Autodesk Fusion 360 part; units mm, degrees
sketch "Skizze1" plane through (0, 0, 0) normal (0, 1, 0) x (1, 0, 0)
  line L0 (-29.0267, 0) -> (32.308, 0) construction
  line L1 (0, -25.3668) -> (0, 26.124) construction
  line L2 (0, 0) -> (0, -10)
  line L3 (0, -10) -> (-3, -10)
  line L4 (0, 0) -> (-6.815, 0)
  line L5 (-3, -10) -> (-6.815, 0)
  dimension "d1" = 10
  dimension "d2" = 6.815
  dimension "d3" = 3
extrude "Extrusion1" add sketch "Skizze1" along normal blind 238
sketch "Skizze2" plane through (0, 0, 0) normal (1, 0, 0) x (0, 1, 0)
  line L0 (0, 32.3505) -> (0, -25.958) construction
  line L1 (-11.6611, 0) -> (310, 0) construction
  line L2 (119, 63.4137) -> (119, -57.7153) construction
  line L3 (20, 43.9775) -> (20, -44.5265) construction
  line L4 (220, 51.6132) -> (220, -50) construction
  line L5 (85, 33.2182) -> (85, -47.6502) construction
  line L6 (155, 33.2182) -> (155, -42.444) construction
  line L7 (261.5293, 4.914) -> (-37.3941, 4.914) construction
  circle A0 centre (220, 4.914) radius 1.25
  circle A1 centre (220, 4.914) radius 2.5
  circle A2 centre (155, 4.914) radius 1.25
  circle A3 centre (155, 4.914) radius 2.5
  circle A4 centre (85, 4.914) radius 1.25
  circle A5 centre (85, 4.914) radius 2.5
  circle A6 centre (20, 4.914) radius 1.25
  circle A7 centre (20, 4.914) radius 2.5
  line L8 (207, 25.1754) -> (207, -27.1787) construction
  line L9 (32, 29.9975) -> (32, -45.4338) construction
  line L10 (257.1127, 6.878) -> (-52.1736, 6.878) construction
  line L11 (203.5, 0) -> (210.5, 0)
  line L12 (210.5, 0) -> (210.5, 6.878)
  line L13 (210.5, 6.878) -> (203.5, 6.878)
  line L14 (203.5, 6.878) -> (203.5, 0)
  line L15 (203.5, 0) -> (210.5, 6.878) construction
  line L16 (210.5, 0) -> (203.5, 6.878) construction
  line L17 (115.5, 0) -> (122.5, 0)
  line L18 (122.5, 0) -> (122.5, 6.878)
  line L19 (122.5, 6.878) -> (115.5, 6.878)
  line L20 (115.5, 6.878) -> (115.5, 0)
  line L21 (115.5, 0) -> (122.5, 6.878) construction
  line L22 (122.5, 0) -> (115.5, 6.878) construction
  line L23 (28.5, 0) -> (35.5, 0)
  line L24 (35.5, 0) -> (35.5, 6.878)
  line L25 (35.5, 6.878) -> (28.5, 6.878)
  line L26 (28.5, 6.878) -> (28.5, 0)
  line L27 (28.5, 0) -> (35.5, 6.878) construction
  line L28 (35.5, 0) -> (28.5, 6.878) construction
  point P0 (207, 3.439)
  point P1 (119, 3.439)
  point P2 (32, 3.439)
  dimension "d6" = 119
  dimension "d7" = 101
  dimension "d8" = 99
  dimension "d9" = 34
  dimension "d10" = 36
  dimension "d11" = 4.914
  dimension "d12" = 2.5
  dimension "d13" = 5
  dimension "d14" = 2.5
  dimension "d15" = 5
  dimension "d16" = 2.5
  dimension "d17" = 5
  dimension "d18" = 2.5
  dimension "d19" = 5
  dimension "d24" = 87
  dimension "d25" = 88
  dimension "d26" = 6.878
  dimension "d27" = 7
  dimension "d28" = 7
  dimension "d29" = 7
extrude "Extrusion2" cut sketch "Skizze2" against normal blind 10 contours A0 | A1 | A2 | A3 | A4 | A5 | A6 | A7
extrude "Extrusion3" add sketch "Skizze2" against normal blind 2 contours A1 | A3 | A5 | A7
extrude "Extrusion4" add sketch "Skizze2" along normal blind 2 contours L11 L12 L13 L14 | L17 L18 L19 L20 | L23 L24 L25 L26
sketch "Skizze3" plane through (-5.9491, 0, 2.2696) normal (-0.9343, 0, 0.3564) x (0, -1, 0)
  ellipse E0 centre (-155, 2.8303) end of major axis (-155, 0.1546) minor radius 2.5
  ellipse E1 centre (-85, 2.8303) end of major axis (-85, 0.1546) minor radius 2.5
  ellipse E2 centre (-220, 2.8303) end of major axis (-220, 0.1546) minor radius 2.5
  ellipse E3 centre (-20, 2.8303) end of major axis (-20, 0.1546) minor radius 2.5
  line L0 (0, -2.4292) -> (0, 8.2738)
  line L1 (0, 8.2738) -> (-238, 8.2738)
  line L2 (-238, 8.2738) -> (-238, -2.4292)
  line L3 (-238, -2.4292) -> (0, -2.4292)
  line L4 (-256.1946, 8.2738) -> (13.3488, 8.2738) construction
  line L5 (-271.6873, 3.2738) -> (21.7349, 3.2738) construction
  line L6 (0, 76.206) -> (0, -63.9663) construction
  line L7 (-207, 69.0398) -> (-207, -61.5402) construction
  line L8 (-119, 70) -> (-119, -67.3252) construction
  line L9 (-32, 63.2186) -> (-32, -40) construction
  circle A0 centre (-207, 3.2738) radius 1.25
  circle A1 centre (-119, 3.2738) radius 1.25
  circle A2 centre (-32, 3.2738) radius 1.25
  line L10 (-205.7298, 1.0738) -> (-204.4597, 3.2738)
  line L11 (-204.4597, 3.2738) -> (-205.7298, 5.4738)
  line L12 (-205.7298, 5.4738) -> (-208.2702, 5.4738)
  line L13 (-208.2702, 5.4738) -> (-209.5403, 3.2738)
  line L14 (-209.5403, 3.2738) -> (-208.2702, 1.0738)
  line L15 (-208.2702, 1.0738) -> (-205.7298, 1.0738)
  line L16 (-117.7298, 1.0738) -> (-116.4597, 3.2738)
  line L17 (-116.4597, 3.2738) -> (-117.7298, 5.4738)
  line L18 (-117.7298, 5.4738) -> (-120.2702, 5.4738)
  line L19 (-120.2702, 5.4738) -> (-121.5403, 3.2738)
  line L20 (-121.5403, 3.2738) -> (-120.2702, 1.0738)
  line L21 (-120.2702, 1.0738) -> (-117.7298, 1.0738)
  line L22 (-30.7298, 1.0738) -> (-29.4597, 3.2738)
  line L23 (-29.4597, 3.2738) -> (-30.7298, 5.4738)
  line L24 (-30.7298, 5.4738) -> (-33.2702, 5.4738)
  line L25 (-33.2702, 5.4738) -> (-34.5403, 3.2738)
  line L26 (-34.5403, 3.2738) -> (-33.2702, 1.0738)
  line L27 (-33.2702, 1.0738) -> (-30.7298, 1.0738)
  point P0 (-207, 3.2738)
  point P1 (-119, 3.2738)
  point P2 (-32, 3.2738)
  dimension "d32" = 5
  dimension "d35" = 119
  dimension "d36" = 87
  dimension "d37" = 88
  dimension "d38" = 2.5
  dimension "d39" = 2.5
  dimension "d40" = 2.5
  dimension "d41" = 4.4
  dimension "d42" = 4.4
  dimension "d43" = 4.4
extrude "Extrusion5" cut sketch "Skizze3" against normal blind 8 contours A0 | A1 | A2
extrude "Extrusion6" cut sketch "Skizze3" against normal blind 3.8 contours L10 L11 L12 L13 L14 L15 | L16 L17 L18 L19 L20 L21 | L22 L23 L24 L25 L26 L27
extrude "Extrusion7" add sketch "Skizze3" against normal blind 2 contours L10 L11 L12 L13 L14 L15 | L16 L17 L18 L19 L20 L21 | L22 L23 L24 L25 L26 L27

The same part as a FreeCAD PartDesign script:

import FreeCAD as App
import Part
import Sketcher
Q = App.Units.Quantity


def add_polygon(sketch, points):
    """Adds a closed chain of lines whose ends are joined by coincident constraints."""
    first, n = sketch.GeometryCount, len(points)
    for a, b in zip(points, points[1:] + points[:1]):
        sketch.addGeometry(Part.LineSegment(App.Vector(*a, 0), App.Vector(*b, 0)), False)
    for i in range(n):
        sketch.addConstraint(Sketcher.Constraint("Coincident", first + i, 2, first + (i + 1) % n, 1))

doc = App.newDocument("Part")
body = doc.addObject("PartDesign::Body", "Body")

sketch1 = body.newObject("Sketcher::SketchObject", "Sketch")
sketch1.AttachmentSupport = (doc.getObject("XZ_Plane"), [""])
sketch1.MapMode = "FlatFace"
add_polygon(sketch1, [(0, 10), (0, 0), (-6.8, 0), (-3, 10)])
sketch1.addConstraint([
    Sketcher.Constraint("Vertical", 0),
    Sketcher.Constraint("Horizontal", 1),
    Sketcher.Constraint("Horizontal", 3),
    Sketcher.Constraint("Coincident", 0, 2, -1, 1),
    Sketcher.Constraint("DistanceX", 3, 1, 3, 2, Q("3 mm")),
    Sketcher.Constraint("DistanceY", 0, 2, 0, 1, Q("10 mm")),
    Sketcher.Constraint("DistanceX", 1, 2, 1, 1, Q("6.815 mm")),
])
pad1 = body.newObject("PartDesign::Pad", "Pad")
pad1.Profile = sketch1
pad1.Length = 238
pad1.Reversed = True

sketch2 = body.newObject("Sketcher::SketchObject", "Sketch001")
sketch2.AttachmentSupport = (doc.getObject("YZ_Plane"), [""])
sketch2.MapMode = "FlatFace"
sketch2.addGeometry([
    Part.Circle(App.Vector(220, 4.9, 0), App.Vector(0, 0, 1), 2.5),
    Part.Circle(App.Vector(155, 4.9, 0), App.Vector(0, 0, 1), 2.5),
    Part.Circle(App.Vector(85, 4.9, 0), App.Vector(0, 0, 1), 2.5),
    Part.Circle(App.Vector(20, 4.9, 0), App.Vector(0, 0, 1), 2.5),
], False)
sketch2.addConstraint([
    Sketcher.Constraint("Equal", 0, 1),
    Sketcher.Constraint("Equal", 1, 2),
    Sketcher.Constraint("Equal", 2, 3),
    Sketcher.Constraint("Horizontal", 0, 3, 1, 3),
    Sketcher.Constraint("Horizontal", 1, 3, 2, 3),
    Sketcher.Constraint("Horizontal", 2, 3, 3, 3),
    Sketcher.Constraint("Diameter", 0, Q("5 mm")),
    Sketcher.Constraint("DistanceX", -1, 1, 0, 3, Q("220 mm")),
    Sketcher.Constraint("DistanceY", -1, 1, 0, 3, Q("4.914 mm")),
    Sketcher.Constraint("DistanceX", -1, 1, 1, 3, Q("155 mm")),
    Sketcher.Constraint("DistanceX", -1, 1, 2, 3, Q("85 mm")),
    Sketcher.Constraint("DistanceX", -1, 1, 3, 3, Q("20 mm")),
])
pocket1 = body.newObject("PartDesign::Pocket", "Pocket")
pocket1.Profile = sketch2
pocket1.Length = 10

sketch3 = body.newObject("Sketcher::SketchObject", "Sketch002")
sketch3.AttachmentSupport = (doc.getObject("YZ_Plane"), [""])
sketch3.MapMode = "FlatFace"
sketch3.addGeometry([
    Part.Circle(App.Vector(220, 4.9, 0), App.Vector(0, 0, 1), 2.5),
    Part.Circle(App.Vector(220, 4.9, 0), App.Vector(0, 0, 1), 1.2),
    Part.Circle(App.Vector(155, 4.9, 0), App.Vector(0, 0, 1), 2.5),
    Part.Circle(App.Vector(155, 4.9, 0), App.Vector(0, 0, 1), 1.2),
    Part.Circle(App.Vector(85, 4.9, 0), App.Vector(0, 0, 1), 2.5),
    Part.Circle(App.Vector(85, 4.9, 0), App.Vector(0, 0, 1), 1.2),
    Part.Circle(App.Vector(20, 4.9, 0), App.Vector(0, 0, 1), 2.5),
    Part.Circle(App.Vector(20, 4.9, 0), App.Vector(0, 0, 1), 1.2),
], False)
sketch3.addConstraint([
    Sketcher.Constraint("Coincident", 1, 3, 0, 3),
    Sketcher.Constraint("Coincident", 3, 3, 2, 3),
    Sketcher.Constraint("Coincident", 5, 3, 4, 3),
    Sketcher.Constraint("Coincident", 7, 3, 6, 3),
    Sketcher.Constraint("Equal", 0, 2),
    Sketcher.Constraint("Equal", 1, 3),
    Sketcher.Constraint("Equal", 2, 4),
    Sketcher.Constraint("Equal", 3, 5),
    Sketcher.Constraint("Equal", 4, 6),
    Sketcher.Constraint("Equal", 5, 7),
    Sketcher.Constraint("Horizontal", 1, 3, 2, 3),
    Sketcher.Constraint("Horizontal", 3, 3, 4, 3),
    Sketcher.Constraint("Horizontal", 5, 3, 6, 3),
    Sketcher.Constraint("Diameter", 0, Q("5 mm")),
    Sketcher.Constraint("Diameter", 1, Q("2.5 mm")),
    Sketcher.Constraint("DistanceX", -1, 1, 0, 3, Q("220 mm")),
    Sketcher.Constraint("DistanceY", -1, 1, 0, 3, Q("4.914 mm")),
    Sketcher.Constraint("DistanceX", -1, 1, 2, 3, Q("155 mm")),
    Sketcher.Constraint("DistanceX", -1, 1, 4, 3, Q("85 mm")),
    Sketcher.Constraint("DistanceX", -1, 1, 6, 3, Q("20 mm")),
])
pad2 = body.newObject("PartDesign::Pad", "Pad001")
pad2.Profile = sketch3
pad2.Length = 2
pad2.Reversed = True

sketch4 = body.newObject("Sketcher::SketchObject", "Sketch003")
sketch4.AttachmentSupport = (doc.getObject("YZ_Plane"), [""])
sketch4.MapMode = "FlatFace"
add_polygon(sketch4, [(204, 7), (204, 0), (210, 0), (210, 7)])
add_polygon(sketch4, [(116, 7), (116, 0), (122, 0), (122, 7)])
add_polygon(sketch4, [(28, 7), (28, 0), (36, 0), (36, 7)])
sketch4.addConstraint([
    Sketcher.Constraint("Vertical", 0),
    Sketcher.Constraint("Horizontal", 1),
    Sketcher.Constraint("Vertical", 2),
    Sketcher.Constraint("Horizontal", 3),
    Sketcher.Constraint("Vertical", 4),
    Sketcher.Constraint("Horizontal", 5),
    Sketcher.Constraint("Vertical", 6),
    Sketcher.Constraint("Horizontal", 7),
    Sketcher.Constraint("Vertical", 8),
    Sketcher.Constraint("Horizontal", 9),
    Sketcher.Constraint("Vertical", 10),
    Sketcher.Constraint("Horizontal", 11),
    Sketcher.Constraint("PointOnObject", 0, 2, -1),
    Sketcher.Constraint("PointOnObject", 4, 2, -1),
    Sketcher.Constraint("PointOnObject", 8, 2, -1),
    Sketcher.Constraint("Horizontal", 3, 2, 6, 2),
    Sketcher.Constraint("Horizontal", 7, 2, 10, 2),
    Sketcher.Constraint("Equal", 3, 5),
    Sketcher.Constraint("Equal", 7, 9),
    Sketcher.Constraint("DistanceX", 1, 1, 1, 2, Q("7 mm")),
    Sketcher.Constraint("DistanceX", 4, 2, 0, 2, Q("88 mm")),
    Sketcher.Constraint("DistanceX", 8, 2, 4, 2, Q("87 mm")),
    Sketcher.Constraint("DistanceY", 0, 2, 0, 1, Q("6.878 mm")),
    Sketcher.Constraint("DistanceX", -1, 1, 0, 2, Q("203.5 mm")),
])
pad3 = body.newObject("PartDesign::Pad", "Pad002")
pad3.Profile = sketch4
pad3.Length = 2

sketch5 = body.newObject("Sketcher::SketchObject", "Sketch004")
sketch5.Placement = App.Placement(App.Vector(-5.9491, 0, 2.2696), App.Rotation(App.Vector(0, -1, 0), App.Vector(0.356411147, 0, 0.934329222), App.Vector(-0.934329222, 0, 0.356411147), "ZXY"))
sketch5.addGeometry([
    Part.Circle(App.Vector(-207, 3.3, 0), App.Vector(0, 0, 1), 1.2),
    Part.Circle(App.Vector(-119, 3.3, 0), App.Vector(0, 0, 1), 1.2),
    Part.Circle(App.Vector(-32, 3.3, 0), App.Vector(0, 0, 1), 1.2),
], False)
sketch5.addConstraint([
    Sketcher.Constraint("Equal", 0, 1),
    Sketcher.Constraint("Equal", 1, 2),
    Sketcher.Constraint("Horizontal", 0, 3, 1, 3),
    Sketcher.Constraint("Horizontal", 1, 3, 2, 3),
    Sketcher.Constraint("Diameter", 0, Q("2.5 mm")),
    Sketcher.Constraint("DistanceX", 1, 3, -1, 1, Q("119 mm")),
    Sketcher.Constraint("DistanceX", 0, 3, 1, 3, Q("88 mm")),
    Sketcher.Constraint("DistanceX", 1, 3, 2, 3, Q("87 mm")),
    Sketcher.Constraint("DistanceY", -1, 1, 0, 3, Q("3.2738 mm")),
])
pocket2 = body.newObject("PartDesign::Pocket", "Pocket001")
pocket2.Profile = sketch5
pocket2.Length = 8

sketch6 = body.newObject("Sketcher::SketchObject", "Sketch005")
sketch6.Placement = App.Placement(App.Vector(-5.9491, 0, 2.2696), App.Rotation(App.Vector(0, -1, 0), App.Vector(0.356411147, 0, 0.934329222), App.Vector(-0.934329222, 0, 0.356411147), "ZXY"))
add_polygon(sketch6, [(-208.3, 1.1), (-205.7, 1.1), (-204.5, 3.3), (-205.7, 5.5), (-208.3, 5.5), (-209.5, 3.3)])
sketch6.addGeometry(Part.Circle(App.Vector(-207, 3.3, 0), App.Vector(0, 0, 1), 1.2), False)
add_polygon(sketch6, [(-120.3, 1.1), (-117.7, 1.1), (-116.5, 3.3), (-117.7, 5.5), (-120.3, 5.5), (-121.5, 3.3)])
sketch6.addGeometry(Part.Circle(App.Vector(-119, 3.3, 0), App.Vector(0, 0, 1), 1.2), False)
add_polygon(sketch6, [(-33.3, 1.1), (-30.7, 1.1), (-29.5, 3.3), (-30.7, 5.5), (-33.3, 5.5), (-34.5, 3.3)])
sketch6.addGeometry(Part.Circle(App.Vector(-32, 3.3, 0), App.Vector(0, 0, 1), 1.2), False)
sketch6.addConstraint([
    Sketcher.Constraint("Horizontal", 0),
    Sketcher.Constraint("Horizontal", 3),
    Sketcher.Constraint("Horizontal", 7),
    Sketcher.Constraint("Horizontal", 10),
    Sketcher.Constraint("Horizontal", 14),
    Sketcher.Constraint("Horizontal", 17),
    Sketcher.Constraint("Equal", 6, 13),
    Sketcher.Constraint("Equal", 13, 20),
    Sketcher.Constraint("Parallel", 1, 4),
    Sketcher.Constraint("Parallel", 2, 5),
    Sketcher.Constraint("Parallel", 4, 8),
    Sketcher.Constraint("Parallel", 5, 9),
    Sketcher.Constraint("Parallel", 8, 11),
    Sketcher.Constraint("Parallel", 9, 12),
    Sketcher.Constraint("Parallel", 11, 15),
    Sketcher.Constraint("Parallel", 12, 16),
    Sketcher.Constraint("Parallel", 15, 18),
    Sketcher.Constraint("Parallel", 16, 19),
    Sketcher.Constraint("Horizontal", 6, 3, 13, 3),
    Sketcher.Constraint("Horizontal", 13, 3, 20, 3),
    Sketcher.Constraint("Horizontal", 20, 3, 1, 2),
    Sketcher.Constraint("Horizontal", 1, 2, 4, 2),
    Sketcher.Constraint("Horizontal", 5, 2, 7, 2),
    Sketcher.Constraint("Horizontal", 4, 2, 8, 2),
    Sketcher.Constraint("Horizontal", 3, 2, 9, 2),
    Sketcher.Constraint("Horizontal", 8, 2, 11, 2),
    Sketcher.Constraint("Horizontal", 12, 2, 14, 2),
    Sketcher.Constraint("Horizontal", 11, 2, 15, 2),
    Sketcher.Constraint("Horizontal", 10, 2, 16, 2),
    Sketcher.Constraint("Horizontal", 15, 2, 18, 2),
    Sketcher.Constraint("Vertical", 0, 2, 2, 2),
    Sketcher.Constraint("Vertical", 3, 2, 5, 2),
    Sketcher.Constraint("Equal", 3, 7),
    Sketcher.Constraint("Equal", 10, 14),
    Sketcher.Constraint("Diameter", 6, Q("2.5 mm")),
    Sketcher.Constraint("DistanceX", 13, 3, -1, 1, Q("119 mm")),
    Sketcher.Constraint("DistanceX", 6, 3, 13, 3, Q("88 mm")),
    Sketcher.Constraint("DistanceX", 13, 3, 20, 3, Q("87 mm")),
    Sketcher.Constraint("DistanceX", 0, 2, 7, 2, Q("88 mm")),
    Sketcher.Constraint("DistanceX", 7, 2, 14, 2, Q("87 mm")),
    Sketcher.Constraint("DistanceY", 0, 2, 2, 2, Q("4.4 mm")),
    Sketcher.Constraint("DistanceX", 0, 2, 1, 2, Q("1.27 mm")),
    Sketcher.Constraint("DistanceX", 0, 1, 0, 2, Q("2.5404 mm")),
    Sketcher.Constraint("DistanceY", -1, 1, 6, 3, Q("3.2738 mm")),
    Sketcher.Constraint("DistanceX", 0, 2, -1, 1, Q("205.7298 mm")),
])
pocket3 = body.newObject("PartDesign::Pocket", "Pocket002")
pocket3.Profile = sketch6
pocket3.Length = 3.8

sketch7 = body.newObject("Sketcher::SketchObject", "Sketch006")
sketch7.Placement = App.Placement(App.Vector(-5.9491, 0, 2.2696), App.Rotation(App.Vector(0, -1, 0), App.Vector(0.356411147, 0, 0.934329222), App.Vector(-0.934329222, 0, 0.356411147), "ZXY"))
add_polygon(sketch7, [(-208.3, 1.1), (-205.7, 1.1), (-204.5, 3.3), (-205.7, 5.5), (-208.3, 5.5), (-209.5, 3.3)])
sketch7.addGeometry(Part.Circle(App.Vector(-207, 3.3, 0), App.Vector(0, 0, 1), 1.2), False)
add_polygon(sketch7, [(-120.3, 1.1), (-117.7, 1.1), (-116.5, 3.3), (-117.7, 5.5), (-120.3, 5.5), (-121.5, 3.3)])
sketch7.addGeometry(Part.Circle(App.Vector(-119, 3.3, 0), App.Vector(0, 0, 1), 1.2), False)
add_polygon(sketch7, [(-33.3, 1.1), (-30.7, 1.1), (-29.5, 3.3), (-30.7, 5.5), (-33.3, 5.5), (-34.5, 3.3)])
sketch7.addGeometry(Part.Circle(App.Vector(-32, 3.3, 0), App.Vector(0, 0, 1), 1.2), False)
sketch7.addConstraint([
    Sketcher.Constraint("Horizontal", 0),
    Sketcher.Constraint("Horizontal", 3),
    Sketcher.Constraint("Horizontal", 7),
    Sketcher.Constraint("Horizontal", 10),
    Sketcher.Constraint("Horizontal", 14),
    Sketcher.Constraint("Horizontal", 17),
    Sketcher.Constraint("Equal", 6, 13),
    Sketcher.Constraint("Equal", 13, 20),
    Sketcher.Constraint("Parallel", 1, 4),
    Sketcher.Constraint("Parallel", 2, 5),
    Sketcher.Constraint("Parallel", 4, 8),
    Sketcher.Constraint("Parallel", 5, 9),
    Sketcher.Constraint("Parallel", 8, 11),
    Sketcher.Constraint("Parallel", 9, 12),
    Sketcher.Constraint("Parallel", 11, 15),
    Sketcher.Constraint("Parallel", 12, 16),
    Sketcher.Constraint("Parallel", 15, 18),
    Sketcher.Constraint("Parallel", 16, 19),
    Sketcher.Constraint("Horizontal", 6, 3, 13, 3),
    Sketcher.Constraint("Horizontal", 13, 3, 20, 3),
    Sketcher.Constraint("Horizontal", 20, 3, 1, 2),
    Sketcher.Constraint("Horizontal", 1, 2, 4, 2),
    Sketcher.Constraint("Horizontal", 5, 2, 7, 2),
    Sketcher.Constraint("Horizontal", 4, 2, 8, 2),
    Sketcher.Constraint("Horizontal", 3, 2, 9, 2),
    Sketcher.Constraint("Horizontal", 8, 2, 11, 2),
    Sketcher.Constraint("Horizontal", 12, 2, 14, 2),
    Sketcher.Constraint("Horizontal", 11, 2, 15, 2),
    Sketcher.Constraint("Horizontal", 10, 2, 16, 2),
    Sketcher.Constraint("Horizontal", 15, 2, 18, 2),
    Sketcher.Constraint("Vertical", 0, 2, 2, 2),
    Sketcher.Constraint("Vertical", 3, 2, 5, 2),
    Sketcher.Constraint("Equal", 3, 7),
    Sketcher.Constraint("Equal", 10, 14),
    Sketcher.Constraint("Diameter", 6, Q("2.5 mm")),
    Sketcher.Constraint("DistanceX", 13, 3, -1, 1, Q("119 mm")),
    Sketcher.Constraint("DistanceX", 6, 3, 13, 3, Q("88 mm")),
    Sketcher.Constraint("DistanceX", 13, 3, 20, 3, Q("87 mm")),
    Sketcher.Constraint("DistanceX", 0, 2, 7, 2, Q("88 mm")),
    Sketcher.Constraint("DistanceX", 7, 2, 14, 2, Q("87 mm")),
    Sketcher.Constraint("DistanceY", 0, 2, 2, 2, Q("4.4 mm")),
    Sketcher.Constraint("DistanceX", 0, 2, 1, 2, Q("1.27 mm")),
    Sketcher.Constraint("DistanceX", 0, 1, 0, 2, Q("2.5404 mm")),
    Sketcher.Constraint("DistanceY", -1, 1, 6, 3, Q("3.2738 mm")),
    Sketcher.Constraint("DistanceX", 0, 2, -1, 1, Q("205.7298 mm")),
])
pad4 = body.newObject("PartDesign::Pad", "Pad003")
pad4.Profile = sketch7
pad4.Length = 2
pad4.Reversed = True

doc.recompute()
